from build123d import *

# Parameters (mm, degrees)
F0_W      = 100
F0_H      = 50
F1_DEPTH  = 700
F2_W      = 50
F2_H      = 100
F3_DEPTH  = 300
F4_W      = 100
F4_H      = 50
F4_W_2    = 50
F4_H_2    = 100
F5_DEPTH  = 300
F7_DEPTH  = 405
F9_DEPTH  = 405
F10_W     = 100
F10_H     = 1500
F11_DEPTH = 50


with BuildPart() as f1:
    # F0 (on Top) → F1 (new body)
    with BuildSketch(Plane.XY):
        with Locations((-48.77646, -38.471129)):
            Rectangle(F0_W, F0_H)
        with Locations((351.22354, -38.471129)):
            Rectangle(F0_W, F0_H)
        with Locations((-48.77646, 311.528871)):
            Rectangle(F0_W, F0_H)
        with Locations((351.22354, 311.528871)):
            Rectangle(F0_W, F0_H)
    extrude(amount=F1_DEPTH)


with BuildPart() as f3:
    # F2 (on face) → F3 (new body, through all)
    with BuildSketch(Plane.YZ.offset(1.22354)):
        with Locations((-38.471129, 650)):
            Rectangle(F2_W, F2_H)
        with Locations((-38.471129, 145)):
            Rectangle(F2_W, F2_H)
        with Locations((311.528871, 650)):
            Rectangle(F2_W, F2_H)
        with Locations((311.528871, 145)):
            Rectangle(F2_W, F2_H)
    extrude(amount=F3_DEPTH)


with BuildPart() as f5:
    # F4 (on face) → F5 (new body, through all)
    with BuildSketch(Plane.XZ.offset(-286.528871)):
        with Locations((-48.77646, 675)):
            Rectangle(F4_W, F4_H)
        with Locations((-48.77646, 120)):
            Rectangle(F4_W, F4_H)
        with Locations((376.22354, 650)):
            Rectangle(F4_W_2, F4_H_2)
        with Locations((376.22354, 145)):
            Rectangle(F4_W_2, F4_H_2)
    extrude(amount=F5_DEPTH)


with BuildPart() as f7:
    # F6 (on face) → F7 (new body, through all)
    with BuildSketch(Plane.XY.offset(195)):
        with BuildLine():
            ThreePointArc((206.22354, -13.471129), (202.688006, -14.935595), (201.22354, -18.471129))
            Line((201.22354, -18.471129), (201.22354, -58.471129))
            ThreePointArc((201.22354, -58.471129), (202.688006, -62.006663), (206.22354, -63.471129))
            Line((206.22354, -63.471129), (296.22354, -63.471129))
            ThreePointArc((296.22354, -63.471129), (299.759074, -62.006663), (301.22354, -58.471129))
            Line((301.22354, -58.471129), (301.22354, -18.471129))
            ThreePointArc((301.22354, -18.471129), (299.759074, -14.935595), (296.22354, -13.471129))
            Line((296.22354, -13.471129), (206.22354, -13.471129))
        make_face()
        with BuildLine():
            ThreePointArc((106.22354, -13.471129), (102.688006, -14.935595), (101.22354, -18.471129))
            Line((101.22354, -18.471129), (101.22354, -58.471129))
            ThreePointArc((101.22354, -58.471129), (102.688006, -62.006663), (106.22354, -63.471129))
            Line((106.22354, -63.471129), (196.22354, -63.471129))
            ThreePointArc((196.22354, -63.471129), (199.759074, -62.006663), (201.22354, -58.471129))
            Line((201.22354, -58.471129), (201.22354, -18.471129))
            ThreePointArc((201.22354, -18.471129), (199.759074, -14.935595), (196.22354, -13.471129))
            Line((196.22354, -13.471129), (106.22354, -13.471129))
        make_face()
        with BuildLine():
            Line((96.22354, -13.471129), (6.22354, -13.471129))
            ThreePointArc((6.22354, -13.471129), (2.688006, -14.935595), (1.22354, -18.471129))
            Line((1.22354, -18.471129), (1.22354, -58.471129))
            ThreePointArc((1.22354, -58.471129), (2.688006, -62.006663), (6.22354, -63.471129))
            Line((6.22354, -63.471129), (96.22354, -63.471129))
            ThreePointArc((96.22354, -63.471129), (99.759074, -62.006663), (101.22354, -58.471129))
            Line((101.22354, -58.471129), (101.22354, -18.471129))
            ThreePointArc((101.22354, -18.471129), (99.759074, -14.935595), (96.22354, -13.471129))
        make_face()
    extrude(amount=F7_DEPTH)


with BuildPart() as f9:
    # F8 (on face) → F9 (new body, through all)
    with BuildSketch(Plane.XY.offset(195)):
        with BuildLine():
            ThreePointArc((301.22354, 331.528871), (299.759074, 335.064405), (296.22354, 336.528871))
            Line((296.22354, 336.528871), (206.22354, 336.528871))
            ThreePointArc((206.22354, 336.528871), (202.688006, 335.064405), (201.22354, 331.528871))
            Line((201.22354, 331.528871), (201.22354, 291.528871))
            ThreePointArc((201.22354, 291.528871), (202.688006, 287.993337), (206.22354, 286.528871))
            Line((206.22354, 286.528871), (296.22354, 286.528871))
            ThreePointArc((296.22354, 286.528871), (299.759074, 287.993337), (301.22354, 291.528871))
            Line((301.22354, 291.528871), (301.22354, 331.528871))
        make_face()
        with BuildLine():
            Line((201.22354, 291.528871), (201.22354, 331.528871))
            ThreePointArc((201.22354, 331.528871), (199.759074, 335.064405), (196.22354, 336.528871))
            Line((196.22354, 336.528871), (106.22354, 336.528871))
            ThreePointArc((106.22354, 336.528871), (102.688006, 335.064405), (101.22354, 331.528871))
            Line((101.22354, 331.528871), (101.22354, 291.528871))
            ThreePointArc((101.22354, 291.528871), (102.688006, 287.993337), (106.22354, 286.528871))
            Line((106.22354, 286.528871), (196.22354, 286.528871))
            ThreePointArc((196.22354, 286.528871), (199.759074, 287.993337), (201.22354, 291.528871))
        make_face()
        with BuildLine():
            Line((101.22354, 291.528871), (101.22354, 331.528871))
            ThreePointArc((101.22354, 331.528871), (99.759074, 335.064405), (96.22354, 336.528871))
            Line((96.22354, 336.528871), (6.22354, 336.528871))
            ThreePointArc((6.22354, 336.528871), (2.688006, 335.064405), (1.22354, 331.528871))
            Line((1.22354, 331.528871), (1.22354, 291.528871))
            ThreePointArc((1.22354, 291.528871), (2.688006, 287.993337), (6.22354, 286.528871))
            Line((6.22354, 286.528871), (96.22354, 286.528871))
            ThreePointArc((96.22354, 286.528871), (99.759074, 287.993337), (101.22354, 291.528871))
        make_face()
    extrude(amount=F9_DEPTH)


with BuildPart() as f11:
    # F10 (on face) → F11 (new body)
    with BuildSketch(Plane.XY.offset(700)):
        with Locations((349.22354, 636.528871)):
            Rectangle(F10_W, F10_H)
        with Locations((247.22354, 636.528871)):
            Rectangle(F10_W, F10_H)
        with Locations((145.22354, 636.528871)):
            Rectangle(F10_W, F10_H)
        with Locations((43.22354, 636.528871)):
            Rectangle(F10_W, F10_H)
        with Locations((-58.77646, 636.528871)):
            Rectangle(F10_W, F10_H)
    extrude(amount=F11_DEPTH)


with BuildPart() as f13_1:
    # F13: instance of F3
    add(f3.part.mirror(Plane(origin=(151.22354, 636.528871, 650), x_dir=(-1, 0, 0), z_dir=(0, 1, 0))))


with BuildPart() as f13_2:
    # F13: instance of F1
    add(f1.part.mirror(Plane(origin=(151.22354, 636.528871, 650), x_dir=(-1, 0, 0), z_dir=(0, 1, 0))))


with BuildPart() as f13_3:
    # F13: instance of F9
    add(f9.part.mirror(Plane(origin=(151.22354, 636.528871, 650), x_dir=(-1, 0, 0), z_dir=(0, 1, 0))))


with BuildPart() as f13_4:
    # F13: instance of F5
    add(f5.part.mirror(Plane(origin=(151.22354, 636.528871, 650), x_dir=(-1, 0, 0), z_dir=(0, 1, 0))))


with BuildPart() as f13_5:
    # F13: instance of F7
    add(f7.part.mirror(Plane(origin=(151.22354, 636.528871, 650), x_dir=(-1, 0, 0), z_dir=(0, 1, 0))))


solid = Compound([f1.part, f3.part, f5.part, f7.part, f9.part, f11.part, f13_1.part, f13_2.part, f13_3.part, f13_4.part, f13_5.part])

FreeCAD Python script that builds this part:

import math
import FreeCAD as App
import Part
import Sketcher
from FreeCAD import Vector


def add_polygon(sketch, points):
    """Adds a closed chain of lines whose ends are joined by coincident constraints."""
    first, n = sketch.GeometryCount, len(points)
    for a, b in zip(points, points[1:] + points[:1]):
        sketch.addGeometry(Part.LineSegment(App.Vector(*a, 0), App.Vector(*b, 0)), False)
    for i in range(n):
        sketch.addConstraint(Sketcher.Constraint("Coincident", first + i, 2, first + (i + 1) % n, 1))

doc = App.newDocument("Part")
body = doc.addObject("PartDesign::Body", "Body")
body.AllowCompound = True

sketch1 = body.newObject("Sketcher::SketchObject", "Sketch")
sketch1.AttachmentSupport = (doc.getObject("XY_Plane"), [""])
sketch1.MapMode = "FlatFace"
add_polygon(sketch1, [(-99, -13), (-99, -63), (1, -63), (1, -13)])
add_polygon(sketch1, [(301, -13), (301, -63), (401, -63), (401, -13)])
add_polygon(sketch1, [(-99, 337), (-99, 287), (1, 287), (1, 337)])
add_polygon(sketch1, [(301, 337), (301, 287), (401, 287), (401, 337)])
sketch1.addConstraint([
    Sketcher.Constraint("Vertical", 0),
    Sketcher.Constraint("Horizontal", 1),
    Sketcher.Constraint("Vertical", 2),
    Sketcher.Constraint("Horizontal", 3),
    Sketcher.Constraint("Vertical", 4),
    Sketcher.Constraint("Horizontal", 5),
    Sketcher.Constraint("Vertical", 6),
    Sketcher.Constraint("Horizontal", 7),
    Sketcher.Constraint("Vertical", 8),
    Sketcher.Constraint("Horizontal", 9),
    Sketcher.Constraint("Vertical", 10),
    Sketcher.Constraint("Horizontal", 11),
    Sketcher.Constraint("Vertical", 12),
    Sketcher.Constraint("Horizontal", 13),
    Sketcher.Constraint("Vertical", 14),
    Sketcher.Constraint("Horizontal", 15),
    Sketcher.Constraint("Horizontal", 1, 2, 4, 2),
    Sketcher.Constraint("Horizontal", 3, 2, 6, 2),
    Sketcher.Constraint("Horizontal", 9, 2, 12, 2),
    Sketcher.Constraint("Horizontal", 11, 2, 14, 2),
    Sketcher.Constraint("Vertical", 3, 2, 8, 2),
    Sketcher.Constraint("Vertical", 2, 2, 9, 2),
    Sketcher.Constraint("Vertical", 7, 2, 12, 2),
    Sketcher.Constraint("Vertical", 6, 2, 13, 2),
    Sketcher.Constraint("Equal", 3, 5),
    Sketcher.Constraint("Equal", 6, 8),
    Sketcher.Constraint("DistanceX", 1, 1, 1, 2, 100.0),
    Sketcher.Constraint("DistanceY", 0, 2, 0, 1, 50.0),
    Sketcher.Constraint("DistanceX", 1, 2, 4, 2, 300.0),
    Sketcher.Constraint("DistanceY", 3, 2, 8, 2, 300.0),
    Sketcher.Constraint("DistanceX", 0, 2, -1, 1, 98.77646),
    Sketcher.Constraint("DistanceY", 0, 2, -1, 1, 63.471129),
])
pad1 = body.newObject("PartDesign::Pad", "Pad")
pad1.Profile = sketch1
pad1.Length = 700
body2 = doc.addObject("PartDesign::Body", "Body001")
body2.AllowCompound = True

sketch2 = body2.newObject("Sketcher::SketchObject", "Sketch001")
sketch2.AttachmentSupport = (doc.getObject("YZ_Plane001"), [""])
sketch2.MapMode = "FlatFace"
sketch2.AttachmentOffset = App.Placement(Vector(0, 0, 1.22354), App.Rotation())
add_polygon(sketch2, [(-63, 700), (-63, 600), (-13, 600), (-13, 700)])
add_polygon(sketch2, [(-63, 195), (-63, 95), (-13, 95), (-13, 195)])
add_polygon(sketch2, [(287, 700), (287, 600), (337, 600), (337, 700)])
add_polygon(sketch2, [(287, 195), (287, 95), (337, 95), (337, 195)])
sketch2.addConstraint([
    Sketcher.Constraint("Vertical", 0),
    Sketcher.Constraint("Horizontal", 1),
    Sketcher.Constraint("Vertical", 2),
    Sketcher.Constraint("Horizontal", 3),
    Sketcher.Constraint("Vertical", 4),
    Sketcher.Constraint("Horizontal", 5),
    Sketcher.Constraint("Vertical", 6),
    Sketcher.Constraint("Horizontal", 7),
    Sketcher.Constraint("Vertical", 8),
    Sketcher.Constraint("Horizontal", 9),
    Sketcher.Constraint("Vertical", 10),
    Sketcher.Constraint("Horizontal", 11),
    Sketcher.Constraint("Vertical", 12),
    Sketcher.Constraint("Horizontal", 13),
    Sketcher.Constraint("Vertical", 14),
    Sketcher.Constraint("Horizontal", 15),
    Sketcher.Constraint("Horizontal", 1, 2, 8, 2),
    Sketcher.Constraint("Horizontal", 3, 2, 10, 2),
    Sketcher.Constraint("Horizontal", 5, 2, 12, 2),
    Sketcher.Constraint("Horizontal", 7, 2, 14, 2),
    Sketcher.Constraint("Vertical", 3, 2, 4, 2),
    Sketcher.Constraint("Vertical", 2, 2, 5, 2),
    Sketcher.Constraint("Vertical", 11, 2, 12, 2),
    Sketcher.Constraint("Vertical", 10, 2, 13, 2),
    Sketcher.Constraint("Equal", 7, 9),
    Sketcher.Constraint("Equal", 2, 4),
    Sketcher.Constraint("DistanceX", 1, 1, 1, 2, 50.0),
    Sketcher.Constraint("DistanceY", 0, 2, 0, 1, 100.0),
    Sketcher.Constraint("DistanceY", -1, 1, 0, 2, 600.0),
    Sketcher.Constraint("DistanceY", -1, 1, 4, 2, 95.0),
    Sketcher.Constraint("DistanceX", 1, 2, 8, 2, 300.0),
    Sketcher.Constraint("DistanceX", 0, 2, -1, 1, 63.471129),
])
pad2 = body2.newObject("PartDesign::Pad", "Pad001")
pad2.Profile = sketch2
pad2.Length = 300
body3 = doc.addObject("PartDesign::Body", "Body002")
body3.AllowCompound = True

sketch3 = body3.newObject("Sketcher::SketchObject", "Sketch002")
sketch3.AttachmentSupport = (doc.getObject("XZ_Plane002"), [""])
sketch3.MapMode = "FlatFace"
sketch3.AttachmentOffset = App.Placement(Vector(0, 0, -286.528871), App.Rotation())
add_polygon(sketch3, [(-99, 700), (-99, 650), (1, 650), (1, 700)])
add_polygon(sketch3, [(-99, 145), (-99, 95), (1, 95), (1, 145)])
add_polygon(sketch3, [(351, 700), (351, 600), (401, 600), (401, 700)])
add_polygon(sketch3, [(351, 195), (351, 95), (401, 95), (401, 195)])
sketch3.addConstraint([
    Sketcher.Constraint("Vertical", 0),
    Sketcher.Constraint("Horizontal", 1),
    Sketcher.Constraint("Vertical", 2),
    Sketcher.Constraint("Horizontal", 3),
    Sketcher.Constraint("Vertical", 4),
    Sketcher.Constraint("Horizontal", 5),
    Sketcher.Constraint("Vertical", 6),
    Sketcher.Constraint("Horizontal", 7),
    Sketcher.Constraint("Vertical", 8),
    Sketcher.Constraint("Horizontal", 9),
    Sketcher.Constraint("Vertical", 10),
    Sketcher.Constraint("Horizontal", 11),
    Sketcher.Constraint("Vertical", 12),
    Sketcher.Constraint("Horizontal", 13),
    Sketcher.Constraint("Vertical", 14),
    Sketcher.Constraint("Horizontal", 15),
    Sketcher.Constraint("Horizontal", 3, 2, 10, 2),
    Sketcher.Constraint("Horizontal", 5, 2, 12, 2),
    Sketcher.Constraint("Vertical", 3, 2, 4, 2),
    Sketcher.Constraint("Vertical", 2, 2, 5, 2),
    Sketcher.Constraint("Vertical", 11, 2, 12, 2),
    Sketcher.Constraint("Vertical", 10, 2, 13, 2),
    Sketcher.Constraint("Equal", 15, 0),
    Sketcher.Constraint("Equal", 2, 4),
    Sketcher.Constraint("Equal", 7, 8),
    Sketcher.Constraint("Equal", 10, 12),
    Sketcher.Constraint("DistanceX", 1, 1, 1, 2, 100.0),
    Sketcher.Constraint("DistanceX", 9, 1, 9, 2, 50.0),
    Sketcher.Constraint("DistanceY", -1, 1, 0, 2, 650.0),
    Sketcher.Constraint("DistanceY", -1, 1, 4, 2, 95.0),
    Sketcher.Constraint("DistanceX", 1, 2, 8, 2, 350.0),
    Sketcher.Constraint("DistanceX", 0, 2, -1, 1, 98.77646),
])
pad3 = body3.newObject("PartDesign::Pad", "Pad002")
pad3.Profile = sketch3
pad3.Length = 300
body4 = doc.addObject("PartDesign::Body", "Body003")

sketch4 = body4.newObject("Sketcher::SketchObject", "Sketch003")
sketch4.AttachmentSupport = (doc.getObject("XY_Plane003"), [""])
sketch4.MapMode = "FlatFace"
sketch4.AttachmentOffset = App.Placement(Vector(0, 0, 195), App.Rotation())
sketch4.addGeometry([
    Part.ArcOfCircle(Part.Circle(Vector(206.2, -18.5, 0), Vector(0, 0, 1), 5), math.radians(90), math.radians(180)),
    Part.ArcOfCircle(Part.Circle(Vector(196.2, -18.5, 0), Vector(0, 0, 1), 5), math.radians(0), math.radians(90)),
    Part.LineSegment(Vector(196.2, -13.5, 0), Vector(106.2, -13.5, 0)),
    Part.ArcOfCircle(Part.Circle(Vector(106.2, -18.5, 0), Vector(0, 0, 1), 5), math.radians(90), math.radians(180)),
    Part.ArcOfCircle(Part.Circle(Vector(96.2, -18.5, 0), Vector(0, 0, 1), 5), math.radians(0), math.radians(90)),
    Part.LineSegment(Vector(96.2, -13.5, 0), Vector(6.2, -13.5, 0)),
    Part.ArcOfCircle(Part.Circle(Vector(6.2, -18.5, 0), Vector(0, 0, 1), 5), math.radians(90), math.radians(180)),
    Part.LineSegment(Vector(1.2, -18.5, 0), Vector(1.2, -58.5, 0)),
    Part.ArcOfCircle(Part.Circle(Vector(6.2, -58.5, 0), Vector(0, 0, 1), 5), math.radians(180), math.radians(270)),
    Part.LineSegment(Vector(6.2, -63.5, 0), Vector(96.2, -63.5, 0)),
    Part.ArcOfCircle(Part.Circle(Vector(96.2, -58.5, 0), Vector(0, 0, 1), 5), math.radians(-90), math.radians(0)),
    Part.ArcOfCircle(Part.Circle(Vector(106.2, -58.5, 0), Vector(0, 0, 1), 5), math.radians(180), math.radians(270)),
    Part.LineSegment(Vector(106.2, -63.5, 0), Vector(196.2, -63.5, 0)),
    Part.ArcOfCircle(Part.Circle(Vector(196.2, -58.5, 0), Vector(0, 0, 1), 5), math.radians(-90), math.radians(0)),
    Part.ArcOfCircle(Part.Circle(Vector(206.2, -58.5, 0), Vector(0, 0, 1), 5), math.radians(180), math.radians(270)),
    Part.LineSegment(Vector(206.2, -63.5, 0), Vector(296.2, -63.5, 0)),
    Part.ArcOfCircle(Part.Circle(Vector(296.2, -58.5, 0), Vector(0, 0, 1), 5), math.radians(-90), math.radians(0)),
    Part.LineSegment(Vector(301.2, -58.5, 0), Vector(301.2, -18.5, 0)),
    Part.ArcOfCircle(Part.Circle(Vector(296.2, -18.5, 0), Vector(0, 0, 1), 5), math.radians(0), math.radians(90)),
    Part.LineSegment(Vector(296.2, -13.5, 0), Vector(206.2, -13.5, 0)),
], False)
sketch4.addConstraint([
    Sketcher.Constraint("Tangent", 0, 2, 1, 1),
    Sketcher.Constraint("Tangent", 1, 2, 2, 1),
    Sketcher.Constraint("Tangent", 2, 2, 3, 1),
    Sketcher.Constraint("Tangent", 3, 2, 4, 1),
    Sketcher.Constraint("Tangent", 4, 2, 5, 1),
    Sketcher.Constraint("Tangent", 5, 2, 6, 1),
    Sketcher.Constraint("Tangent", 6, 2, 7, 1),
    Sketcher.Constraint("Tangent", 7, 2, 8, 1),
    Sketcher.Constraint("Tangent", 8, 2, 9, 1),
    Sketcher.Constraint("Tangent", 9, 2, 10, 1),
    Sketcher.Constraint("Tangent", 10, 2, 11, 1),
    Sketcher.Constraint("Tangent", 11, 2, 12, 1),
    Sketcher.Constraint("Tangent", 12, 2, 13, 1),
    Sketcher.Constraint("Tangent", 13, 2, 14, 1),
    Sketcher.Constraint("Tangent", 14, 2, 15, 1),
    Sketcher.Constraint("Tangent", 15, 2, 16, 1),
    Sketcher.Constraint("Tangent", 16, 2, 17, 1),
    Sketcher.Constraint("Tangent", 17, 2, 18, 1),
    Sketcher.Constraint("Tangent", 18, 2, 19, 1),
    Sketcher.Constraint("Tangent", 19, 2, 0, 1),
    Sketcher.Constraint("Horizontal", 2),
    Sketcher.Constraint("Horizontal", 5),
    Sketcher.Constraint("Vertical", 7),
    Sketcher.Constraint("Horizontal", 9),
    Sketcher.Constraint("Horizontal", 12),
    Sketcher.Constraint("Horizontal", 15),
    Sketcher.Constraint("Vertical", 17),
    Sketcher.Constraint("Horizontal", 19),
    Sketcher.Constraint("Equal", 0, 1),
    Sketcher.Constraint("Equal", 1, 3),
    Sketcher.Constraint("Equal", 3, 4),
    Sketcher.Constraint("Equal", 4, 6),
    Sketcher.Constraint("Equal", 6, 8),
    Sketcher.Constraint("Equal", 8, 10),
    Sketcher.Constraint("Equal", 10, 11),
    Sketcher.Constraint("Equal", 11, 13),
    Sketcher.Constraint("Equal", 13, 14),
    Sketcher.Constraint("Equal", 14, 16),
    Sketcher.Constraint("Equal", 16, 18),
    Sketcher.Constraint("Horizontal", 0, 3, 1, 3),
    Sketcher.Constraint("Horizontal", 3, 3, 4, 3),
    Sketcher.Constraint("Horizontal", 10, 3, 11, 3),
    Sketcher.Constraint("Horizontal", 13, 3, 14, 3),
    Sketcher.Constraint("Vertical", 4, 3, 10, 3),
    Sketcher.Constraint("Vertical", 1, 3, 13, 3),
    Sketcher.Constraint("Equal", 2, 5),
    Sketcher.Constraint("Equal", 12, 15),
    Sketcher.Constraint("Radius", 0, 5.0),
    Sketcher.Constraint("DistanceX", 2, 2, 2, 1, 90.0),
    Sketcher.Constraint("DistanceY", 7, 2, 7, 1, 40.0),
    Sketcher.Constraint("DistanceX", -1, 1, 0, 3, 206.22354),
    Sketcher.Constraint("DistanceY", 0, 3, -1, 1, 18.471129),
])
pad4 = body4.newObject("PartDesign::Pad", "Pad003")
pad4.Profile = sketch4
pad4.Length = 405
body5 = doc.addObject("PartDesign::Body", "Body004")

sketch5 = body5.newObject("Sketcher::SketchObject", "Sketch004")
sketch5.AttachmentSupport = (doc.getObject("XY_Plane004"), [""])
sketch5.MapMode = "FlatFace"
sketch5.AttachmentOffset = App.Placement(Vector(0, 0, 195), App.Rotation())
sketch5.addGeometry([
    Part.ArcOfCircle(Part.Circle(Vector(296.2, 331.5, 0), Vector(0, 0, 1), 5), math.radians(0), math.radians(90)),
    Part.LineSegment(Vector(296.2, 336.5, 0), Vector(206.2, 336.5, 0)),
    Part.ArcOfCircle(Part.Circle(Vector(206.2, 331.5, 0), Vector(0, 0, 1), 5), math.radians(90), math.radians(180)),
    Part.ArcOfCircle(Part.Circle(Vector(196.2, 331.5, 0), Vector(0, 0, 1), 5), math.radians(0), math.radians(90)),
    Part.LineSegment(Vector(196.2, 336.5, 0), Vector(106.2, 336.5, 0)),
    Part.ArcOfCircle(Part.Circle(Vector(106.2, 331.5, 0), Vector(0, 0, 1), 5), math.radians(90), math.radians(180)),
    Part.ArcOfCircle(Part.Circle(Vector(96.2, 331.5, 0), Vector(0, 0, 1), 5), math.radians(0), math.radians(90)),
    Part.LineSegment(Vector(96.2, 336.5, 0), Vector(6.2, 336.5, 0)),
    Part.ArcOfCircle(Part.Circle(Vector(6.2, 331.5, 0), Vector(0, 0, 1), 5), math.radians(90), math.radians(180)),
    Part.LineSegment(Vector(1.2, 331.5, 0), Vector(1.2, 291.5, 0)),
    Part.ArcOfCircle(Part.Circle(Vector(6.2, 291.5, 0), Vector(0, 0, 1), 5), math.radians(180), math.radians(270)),
    Part.LineSegment(Vector(6.2, 286.5, 0), Vector(96.2, 286.5, 0)),
    Part.ArcOfCircle(Part.Circle(Vector(96.2, 291.5, 0), Vector(0, 0, 1), 5), math.radians(-90), math.radians(0)),
    Part.ArcOfCircle(Part.Circle(Vector(106.2, 291.5, 0), Vector(0, 0, 1), 5), math.radians(180), math.radians(270)),
    Part.LineSegment(Vector(106.2, 286.5, 0), Vector(196.2, 286.5, 0)),
    Part.ArcOfCircle(Part.Circle(Vector(196.2, 291.5, 0), Vector(0, 0, 1), 5), math.radians(-90), math.radians(0)),
    Part.ArcOfCircle(Part.Circle(Vector(206.2, 291.5, 0), Vector(0, 0, 1), 5), math.radians(180), math.radians(270)),
    Part.LineSegment(Vector(206.2, 286.5, 0), Vector(296.2, 286.5, 0)),
    Part.ArcOfCircle(Part.Circle(Vector(296.2, 291.5, 0), Vector(0, 0, 1), 5), math.radians(-90), math.radians(0)),
    Part.LineSegment(Vector(301.2, 291.5, 0), Vector(301.2, 331.5, 0)),
], False)
sketch5.addConstraint([
    Sketcher.Constraint("Tangent", 0, 2, 1, 1),
    Sketcher.Constraint("Tangent", 1, 2, 2, 1),
    Sketcher.Constraint("Tangent", 2, 2, 3, 1),
    Sketcher.Constraint("Tangent", 3, 2, 4, 1),
    Sketcher.Constraint("Tangent", 4, 2, 5, 1),
    Sketcher.Constraint("Tangent", 5, 2, 6, 1),
    Sketcher.Constraint("Tangent", 6, 2, 7, 1),
    Sketcher.Constraint("Tangent", 7, 2, 8, 1),
    Sketcher.Constraint("Tangent", 8, 2, 9, 1),
    Sketcher.Constraint("Tangent", 9, 2, 10, 1),
    Sketcher.Constraint("Tangent", 10, 2, 11, 1),
    Sketcher.Constraint("Tangent", 11, 2, 12, 1),
    Sketcher.Constraint("Tangent", 12, 2, 13, 1),
    Sketcher.Constraint("Tangent", 13, 2, 14, 1),
    Sketcher.Constraint("Tangent", 14, 2, 15, 1),
    Sketcher.Constraint("Tangent", 15, 2, 16, 1),
    Sketcher.Constraint("Tangent", 16, 2, 17, 1),
    Sketcher.Constraint("Tangent", 17, 2, 18, 1),
    Sketcher.Constraint("Tangent", 18, 2, 19, 1),
    Sketcher.Constraint("Tangent", 19, 2, 0, 1),
    Sketcher.Constraint("Horizontal", 1),
    Sketcher.Constraint("Horizontal", 4),
    Sketcher.Constraint("Horizontal", 7),
    Sketcher.Constraint("Vertical", 9),
    Sketcher.Constraint("Horizontal", 11),
    Sketcher.Constraint("Horizontal", 14),
    Sketcher.Constraint("Horizontal", 17),
    Sketcher.Constraint("Vertical", 19),
    Sketcher.Constraint("Equal", 0, 2),
    Sketcher.Constraint("Equal", 2, 3),
    Sketcher.Constraint("Equal", 3, 5),
    Sketcher.Constraint("Equal", 5, 6),
    Sketcher.Constraint("Equal", 6, 8),
    Sketcher.Constraint("Equal", 8, 10),
    Sketcher.Constraint("Equal", 10, 12),
    Sketcher.Constraint("Equal", 12, 13),
    Sketcher.Constraint("Equal", 13, 15),
    Sketcher.Constraint("Equal", 15, 16),
    Sketcher.Constraint("Equal", 16, 18),
    Sketcher.Constraint("Horizontal", 2, 3, 3, 3),
    Sketcher.Constraint("Horizontal", 5, 3, 6, 3),
    Sketcher.Constraint("Horizontal", 12, 3, 13, 3),
    Sketcher.Constraint("Horizontal", 15, 3, 16, 3),
    Sketcher.Constraint("Vertical", 6, 3, 12, 3),
    Sketcher.Constraint("Vertical", 3, 3, 15, 3),
    Sketcher.Constraint("Equal", 1, 4),
    Sketcher.Constraint("Equal", 4, 7),
    Sketcher.Constraint("Radius", 0, 5.0),
    Sketcher.Constraint("DistanceX", 1, 2, 1, 1, 90.0),
    Sketcher.Constraint("DistanceY", 9, 2, 9, 1, 40.0),
    Sketcher.Constraint("DistanceX", -1, 1, 0, 3, 296.22354),
    Sketcher.Constraint("DistanceY", -1, 1, 0, 3, 331.528871),
])
pad5 = body5.newObject("PartDesign::Pad", "Pad004")
pad5.Profile = sketch5
pad5.Length = 405
body6 = doc.addObject("PartDesign::Body", "Body005")
body6.AllowCompound = True

sketch6 = body6.newObject("Sketcher::SketchObject", "Sketch005")
sketch6.AttachmentSupport = (doc.getObject("XY_Plane005"), [""])
sketch6.MapMode = "FlatFace"
sketch6.AttachmentOffset = App.Placement(Vector(0, 0, 700), App.Rotation())
add_polygon(sketch6, [(299, 1387), (299, -113), (399, -113), (399, 1387)])
add_polygon(sketch6, [(197, 1387), (197, -113), (297, -113), (297, 1387)])
add_polygon(sketch6, [(95, 1387), (95, -113), (195, -113), (195, 1387)])
add_polygon(sketch6, [(-7, 1387), (-7, -113), (93, -113), (93, 1387)])
add_polygon(sketch6, [(-109, 1387), (-109, -113), (-9, -113), (-9, 1387)])
sketch6.addConstraint([
    Sketcher.Constraint("Vertical", 0),
    Sketcher.Constraint("Horizontal", 1),
    Sketcher.Constraint("Vertical", 2),
    Sketcher.Constraint("Horizontal", 3),
    Sketcher.Constraint("Vertical", 4),
    Sketcher.Constraint("Horizontal", 5),
    Sketcher.Constraint("Vertical", 6),
    Sketcher.Constraint("Horizontal", 7),
    Sketcher.Constraint("Vertical", 8),
    Sketcher.Constraint("Horizontal", 9),
    Sketcher.Constraint("Vertical", 10),
    Sketcher.Constraint("Horizontal", 11),
    Sketcher.Constraint("Vertical", 12),
    Sketcher.Constraint("Horizontal", 13),
    Sketcher.Constraint("Vertical", 14),
    Sketcher.Constraint("Horizontal", 15),
    Sketcher.Constraint("Vertical", 16),
    Sketcher.Constraint("Horizontal", 17),
    Sketcher.Constraint("Vertical", 18),
    Sketcher.Constraint("Horizontal", 19),
    Sketcher.Constraint("Horizontal", 1, 2, 4, 2),
    Sketcher.Constraint("Horizontal", 3, 2, 6, 2),
    Sketcher.Constraint("Horizontal", 5, 2, 8, 2),
    Sketcher.Constraint("Horizontal", 7, 2, 10, 2),
    Sketcher.Constraint("Horizontal", 9, 2, 12, 2),
    Sketcher.Constraint("Horizontal", 11, 2, 14, 2),
    Sketcher.Constraint("Horizontal", 13, 2, 16, 2),
    Sketcher.Constraint("Horizontal", 15, 2, 18, 2),
    Sketcher.Constraint("Equal", 3, 5),
    Sketcher.Constraint("Equal", 7, 9),
    Sketcher.Constraint("Equal", 11, 13),
    Sketcher.Constraint("Equal", 15, 17),
    Sketcher.Constraint("DistanceX", 1, 1, 1, 2, 100.0),
    Sketcher.Constraint("DistanceY", 0, 2, 0, 1, 1500.0),
    Sketcher.Constraint("DistanceX", 4, 2, 0, 2, 102.0),
    Sketcher.Constraint("DistanceX", 8, 2, 4, 2, 102.0),
    Sketcher.Constraint("DistanceX", 12, 2, 8, 2, 102.0),
    Sketcher.Constraint("DistanceX", 16, 2, 12, 2, 102.0),
    Sketcher.Constraint("DistanceX", -1, 1, 0, 2, 299.22354),
    Sketcher.Constraint("DistanceY", 0, 2, -1, 1, 113.471129),
])
pad6 = body6.newObject("PartDesign::Pad", "Pad005")
pad6.Profile = sketch6
pad6.Length = 50
body7 = doc.addObject("PartDesign::Body", "Body006")
body7.AllowCompound = True
doc.recompute()

mirroring = doc.addObject("Part::Mirroring", "Mirroring")
mirroring.Source = body2
mirroring.Base = Vector(151.22354, 636.528871, 650)
mirroring.Normal = Vector(0, 1, 0)
body7.BaseFeature = mirroring
doc.recompute()
body8 = doc.addObject("PartDesign::Body", "Body007")
body8.AllowCompound = True
doc.recompute()

mirroring2 = doc.addObject("Part::Mirroring", "Mirroring001")
mirroring2.Source = body
mirroring2.Base = Vector(151.22354, 636.528871, 650)
mirroring2.Normal = Vector(0, 1, 0)
body8.BaseFeature = mirroring2
doc.recompute()
body9 = doc.addObject("PartDesign::Body", "Body008")
doc.recompute()

mirroring3 = doc.addObject("Part::Mirroring", "Mirroring002")
mirroring3.Source = body5
mirroring3.Base = Vector(151.22354, 636.528871, 650)
mirroring3.Normal = Vector(0, 1, 0)
body9.BaseFeature = mirroring3
doc.recompute()
body10 = doc.addObject("PartDesign::Body", "Body009")
body10.AllowCompound = True
doc.recompute()

mirroring4 = doc.addObject("Part::Mirroring", "Mirroring003")
mirroring4.Source = body3
mirroring4.Base = Vector(151.22354, 636.528871, 650)
mirroring4.Normal = Vector(0, 1, 0)
body10.BaseFeature = mirroring4
doc.recompute()
body11 = doc.addObject("PartDesign::Body", "Body010")
doc.recompute()

mirroring5 = doc.addObject("Part::Mirroring", "Mirroring004")
mirroring5.Source = body4
mirroring5.Base = Vector(151.22354, 636.528871, 650)
mirroring5.Normal = Vector(0, 1, 0)
body11.BaseFeature = mirroring5
doc.recompute()
mirroring.Visibility = False
mirroring2.Visibility = False
mirroring3.Visibility = False
mirroring4.Visibility = False
mirroring5.Visibility = False

doc.recompute()
